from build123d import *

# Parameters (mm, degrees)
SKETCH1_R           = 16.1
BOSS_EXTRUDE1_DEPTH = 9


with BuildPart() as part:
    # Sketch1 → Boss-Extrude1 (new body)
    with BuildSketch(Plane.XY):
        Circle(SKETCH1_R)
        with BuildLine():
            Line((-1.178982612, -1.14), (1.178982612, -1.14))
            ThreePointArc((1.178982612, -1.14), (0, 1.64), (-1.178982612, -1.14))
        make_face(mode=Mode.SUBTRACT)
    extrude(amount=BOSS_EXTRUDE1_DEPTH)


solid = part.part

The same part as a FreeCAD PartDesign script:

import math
import FreeCAD as App
import Part
import Sketcher
from FreeCAD import Vector

doc = App.newDocument("Part")
params = doc.addObject("Spreadsheet::Sheet", "Params")
for row, (alias, value) in enumerate([
    ("sketch1_diameter", "32.2 mm"),
    ("sketch1_radius", "1.64 mm"),
    ("pad1_length", "9 mm"),
], start=1):
    params.set(f"A{row}", alias)
    params.set(f"B{row}", "=" + value)
    params.setAlias(f"B{row}", alias)

body = doc.addObject("PartDesign::Body", "Body")

# Sketch on XY plane
sketch1 = body.newObject("Sketcher::SketchObject", "Sketch")
sketch1.AttachmentSupport = (doc.getObject("XY_Plane"), [""])
sketch1.MapMode = "FlatFace"
sketch1.addGeometry(Part.Circle(Vector(0, 0, 0), Vector(0, 0, 1), 16.1), False)
sketch1.addGeometry(Part.LineSegment(Vector(1.178983, -1.14, 0), Vector(-1.178983, -1.14, 0)), False)
sketch1.addGeometry(Part.ArcOfCircle(Part.Circle(Vector(0, 0, 0), Vector(0, 0, 1), 1.64), math.radians(-44.036936), math.radians(224.036936)), False)
sketch1.addConstraint(Sketcher.Constraint("Coincident", 1, 1, 2, 1))
sketch1.addConstraint(Sketcher.Constraint("Coincident", 2, 2, 1, 2))
sketch1.addConstraint(Sketcher.Constraint("Horizontal", 1))
sketch1.addConstraint(Sketcher.Constraint("Coincident", 0, 3, -1, 1))
sketch1.addConstraint(Sketcher.Constraint("Coincident", 2, 3, -1, 1))
sketch1.addConstraint(Sketcher.Constraint("Diameter", 0, 32.2))
sketch1.addConstraint(Sketcher.Constraint("Radius", 2, 1.64))
sketch1.addConstraint(Sketcher.Constraint("DistanceY", 1, 1, -1, 1, 1.14))
sketch1.setExpression("Constraints[5]", "Params.sketch1_diameter")
sketch1.setExpression("Constraints[6]", "Params.sketch1_radius")
pad1 = body.newObject("PartDesign::Pad", "Pad")
pad1.Profile = sketch1
pad1.setExpression("Length", "Params.pad1_length")

doc.recompute()
